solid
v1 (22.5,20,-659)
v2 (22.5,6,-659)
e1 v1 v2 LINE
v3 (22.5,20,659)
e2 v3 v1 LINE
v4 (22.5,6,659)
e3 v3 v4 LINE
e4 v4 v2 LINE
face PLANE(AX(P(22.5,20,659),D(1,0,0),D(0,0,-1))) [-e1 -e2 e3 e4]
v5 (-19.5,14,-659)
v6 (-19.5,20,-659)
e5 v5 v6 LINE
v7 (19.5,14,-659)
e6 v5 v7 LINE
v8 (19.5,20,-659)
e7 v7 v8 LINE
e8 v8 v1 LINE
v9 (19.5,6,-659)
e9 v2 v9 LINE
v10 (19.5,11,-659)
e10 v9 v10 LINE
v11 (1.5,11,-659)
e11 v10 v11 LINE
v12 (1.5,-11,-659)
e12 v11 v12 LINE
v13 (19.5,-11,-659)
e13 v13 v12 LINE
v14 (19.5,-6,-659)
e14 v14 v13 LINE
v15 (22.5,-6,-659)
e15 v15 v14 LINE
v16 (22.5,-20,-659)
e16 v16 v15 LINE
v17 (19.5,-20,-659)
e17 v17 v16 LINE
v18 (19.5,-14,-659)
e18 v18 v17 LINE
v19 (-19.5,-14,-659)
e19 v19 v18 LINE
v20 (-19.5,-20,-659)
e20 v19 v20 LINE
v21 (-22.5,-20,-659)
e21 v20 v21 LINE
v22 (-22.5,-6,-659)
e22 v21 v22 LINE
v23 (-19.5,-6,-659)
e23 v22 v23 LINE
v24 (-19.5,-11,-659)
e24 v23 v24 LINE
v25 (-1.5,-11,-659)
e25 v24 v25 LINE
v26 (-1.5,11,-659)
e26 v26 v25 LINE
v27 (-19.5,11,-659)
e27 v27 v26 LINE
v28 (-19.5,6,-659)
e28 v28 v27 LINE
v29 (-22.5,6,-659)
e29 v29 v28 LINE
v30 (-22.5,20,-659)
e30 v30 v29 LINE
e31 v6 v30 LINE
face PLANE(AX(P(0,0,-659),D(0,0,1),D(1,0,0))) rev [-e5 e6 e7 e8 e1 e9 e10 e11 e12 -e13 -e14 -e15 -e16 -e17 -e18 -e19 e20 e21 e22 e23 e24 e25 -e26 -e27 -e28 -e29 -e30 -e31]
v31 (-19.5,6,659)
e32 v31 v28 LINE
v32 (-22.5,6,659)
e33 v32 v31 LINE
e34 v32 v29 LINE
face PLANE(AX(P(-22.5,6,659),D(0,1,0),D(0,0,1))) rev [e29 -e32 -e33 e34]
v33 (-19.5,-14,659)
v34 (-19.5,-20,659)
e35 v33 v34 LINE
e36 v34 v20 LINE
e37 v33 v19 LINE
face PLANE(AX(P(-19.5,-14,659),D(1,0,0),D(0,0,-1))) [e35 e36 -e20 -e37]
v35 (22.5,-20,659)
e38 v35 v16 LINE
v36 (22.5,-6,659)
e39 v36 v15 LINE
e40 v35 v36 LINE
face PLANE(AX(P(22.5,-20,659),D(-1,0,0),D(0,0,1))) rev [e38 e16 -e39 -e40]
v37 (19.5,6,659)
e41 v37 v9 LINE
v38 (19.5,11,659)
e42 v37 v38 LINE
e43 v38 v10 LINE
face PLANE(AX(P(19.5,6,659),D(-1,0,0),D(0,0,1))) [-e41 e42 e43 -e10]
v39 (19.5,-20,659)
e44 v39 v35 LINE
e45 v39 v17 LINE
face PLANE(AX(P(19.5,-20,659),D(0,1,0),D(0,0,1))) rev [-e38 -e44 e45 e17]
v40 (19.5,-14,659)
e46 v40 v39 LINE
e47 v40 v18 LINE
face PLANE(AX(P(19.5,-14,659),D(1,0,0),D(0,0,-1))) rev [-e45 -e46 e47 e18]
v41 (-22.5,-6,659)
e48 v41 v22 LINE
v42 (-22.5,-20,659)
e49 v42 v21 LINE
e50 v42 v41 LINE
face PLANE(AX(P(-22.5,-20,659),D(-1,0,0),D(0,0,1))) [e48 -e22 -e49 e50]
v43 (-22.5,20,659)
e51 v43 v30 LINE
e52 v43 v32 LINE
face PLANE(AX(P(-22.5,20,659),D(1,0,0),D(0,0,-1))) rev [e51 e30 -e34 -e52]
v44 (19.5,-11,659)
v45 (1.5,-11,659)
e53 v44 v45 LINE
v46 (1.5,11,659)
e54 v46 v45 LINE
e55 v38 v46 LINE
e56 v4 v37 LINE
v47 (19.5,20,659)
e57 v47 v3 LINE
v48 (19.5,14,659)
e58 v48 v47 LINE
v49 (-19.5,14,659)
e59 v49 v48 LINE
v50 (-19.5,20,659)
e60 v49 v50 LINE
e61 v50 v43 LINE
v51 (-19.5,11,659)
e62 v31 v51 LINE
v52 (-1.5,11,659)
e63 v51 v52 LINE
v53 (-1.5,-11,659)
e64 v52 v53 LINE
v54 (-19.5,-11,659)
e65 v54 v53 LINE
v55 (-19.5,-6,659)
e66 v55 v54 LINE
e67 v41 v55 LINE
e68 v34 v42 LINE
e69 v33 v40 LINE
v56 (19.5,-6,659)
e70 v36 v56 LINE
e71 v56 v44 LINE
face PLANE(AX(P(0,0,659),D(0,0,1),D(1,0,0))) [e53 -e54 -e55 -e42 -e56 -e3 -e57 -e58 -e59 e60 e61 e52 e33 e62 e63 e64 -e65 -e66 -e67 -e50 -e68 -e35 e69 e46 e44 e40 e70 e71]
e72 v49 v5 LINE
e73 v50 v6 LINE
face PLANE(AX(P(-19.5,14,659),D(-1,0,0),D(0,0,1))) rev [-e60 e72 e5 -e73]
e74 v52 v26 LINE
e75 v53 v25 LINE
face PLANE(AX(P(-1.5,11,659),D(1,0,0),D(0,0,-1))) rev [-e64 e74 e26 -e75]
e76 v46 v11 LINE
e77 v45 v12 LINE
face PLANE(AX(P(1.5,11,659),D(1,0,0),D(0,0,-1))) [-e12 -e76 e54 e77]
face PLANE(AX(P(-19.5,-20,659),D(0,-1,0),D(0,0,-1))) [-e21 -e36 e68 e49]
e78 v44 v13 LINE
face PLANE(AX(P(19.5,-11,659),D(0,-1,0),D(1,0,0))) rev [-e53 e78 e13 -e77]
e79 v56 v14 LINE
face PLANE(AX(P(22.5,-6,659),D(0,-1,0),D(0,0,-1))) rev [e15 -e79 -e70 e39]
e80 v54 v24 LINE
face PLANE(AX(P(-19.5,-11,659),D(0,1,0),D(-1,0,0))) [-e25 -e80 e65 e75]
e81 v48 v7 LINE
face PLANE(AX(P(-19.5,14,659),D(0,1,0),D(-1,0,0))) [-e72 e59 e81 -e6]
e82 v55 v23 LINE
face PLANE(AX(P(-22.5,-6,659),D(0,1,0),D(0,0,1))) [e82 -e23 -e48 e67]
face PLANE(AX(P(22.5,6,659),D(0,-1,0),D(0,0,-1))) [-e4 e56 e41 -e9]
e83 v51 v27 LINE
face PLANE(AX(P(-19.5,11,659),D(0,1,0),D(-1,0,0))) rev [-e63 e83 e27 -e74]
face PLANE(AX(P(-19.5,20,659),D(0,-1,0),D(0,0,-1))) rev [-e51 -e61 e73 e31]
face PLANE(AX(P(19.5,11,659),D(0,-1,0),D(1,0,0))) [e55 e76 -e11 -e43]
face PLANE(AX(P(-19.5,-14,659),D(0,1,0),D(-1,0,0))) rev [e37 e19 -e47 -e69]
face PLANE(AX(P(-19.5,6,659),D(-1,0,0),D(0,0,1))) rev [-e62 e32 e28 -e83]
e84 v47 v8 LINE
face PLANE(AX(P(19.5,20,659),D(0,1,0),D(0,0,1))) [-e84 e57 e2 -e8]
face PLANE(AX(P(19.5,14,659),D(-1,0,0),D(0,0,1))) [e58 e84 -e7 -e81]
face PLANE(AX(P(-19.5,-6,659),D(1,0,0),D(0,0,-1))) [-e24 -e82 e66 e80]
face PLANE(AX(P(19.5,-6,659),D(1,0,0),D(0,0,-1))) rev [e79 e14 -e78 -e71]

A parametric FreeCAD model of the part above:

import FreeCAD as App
import Part
import Sketcher
Q = App.Units.Quantity


def add_polygon(sketch, points):
    """Adds a closed chain of lines whose ends are joined by coincident constraints."""
    first, n = sketch.GeometryCount, len(points)
    for a, b in zip(points, points[1:] + points[:1]):
        sketch.addGeometry(Part.LineSegment(App.Vector(*a, 0), App.Vector(*b, 0)), False)
    for i in range(n):
        sketch.addConstraint(Sketcher.Constraint("Coincident", first + i, 2, first + (i + 1) % n, 1))

doc = App.newDocument("Part")
body = doc.addObject("PartDesign::Body", "Body")

sketch1 = body.newObject("Sketcher::SketchObject", "Sketch")
sketch1.AttachmentSupport = (doc.getObject("XY_Plane"), [""])
sketch1.MapMode = "FlatFace"
add_polygon(sketch1, [(19.5, 14), (-19.5, 14), (-19.5, 20), (-22.5, 20), (-22.5, 6), (-19.5, 6), (-19.5, 11), (-1.5, 11), (-1.5, -11), (-19.5, -11), (-19.5, -6), (-22.5, -6), (-22.5, -20), (-19.5, -20), (-19.5, -14), (19.5, -14), (19.5, -20), (22.5, -20), (22.5, -6), (19.5, -6), (19.5, -11), (1.5, -11), (1.5, 11), (19.5, 11), (19.5, 6), (22.5, 6), (22.5, 20), (19.5, 20)])
sketch1.addConstraint(Sketcher.Constraint("Horizontal", 0))
sketch1.addConstraint(Sketcher.Constraint("Vertical", 1))
sketch1.addConstraint(Sketcher.Constraint("Horizontal", 2))
sketch1.addConstraint(Sketcher.Constraint("Vertical", 3))
sketch1.addConstraint(Sketcher.Constraint("Horizontal", 4))
sketch1.addConstraint(Sketcher.Constraint("Vertical", 5))
sketch1.addConstraint(Sketcher.Constraint("Horizontal", 6))
sketch1.addConstraint(Sketcher.Constraint("Vertical", 7))
sketch1.addConstraint(Sketcher.Constraint("Horizontal", 8))
sketch1.addConstraint(Sketcher.Constraint("Vertical", 9))
sketch1.addConstraint(Sketcher.Constraint("Horizontal", 10))
sketch1.addConstraint(Sketcher.Constraint("Vertical", 11))
sketch1.addConstraint(Sketcher.Constraint("Horizontal", 12))
sketch1.addConstraint(Sketcher.Constraint("Vertical", 13))
sketch1.addConstraint(Sketcher.Constraint("Horizontal", 14))
sketch1.addConstraint(Sketcher.Constraint("Vertical", 15))
sketch1.addConstraint(Sketcher.Constraint("Horizontal", 16))
sketch1.addConstraint(Sketcher.Constraint("Vertical", 17))
sketch1.addConstraint(Sketcher.Constraint("Horizontal", 18))
sketch1.addConstraint(Sketcher.Constraint("Vertical", 19))
sketch1.addConstraint(Sketcher.Constraint("Horizontal", 20))
sketch1.addConstraint(Sketcher.Constraint("Vertical", 21))
sketch1.addConstraint(Sketcher.Constraint("Horizontal", 22))
sketch1.addConstraint(Sketcher.Constraint("Vertical", 23))
sketch1.addConstraint(Sketcher.Constraint("Horizontal", 24))
sketch1.addConstraint(Sketcher.Constraint("Vertical", 25))
sketch1.addConstraint(Sketcher.Constraint("Horizontal", 26))
sketch1.addConstraint(Sketcher.Constraint("Vertical", 27))
sketch1.addConstraint(Sketcher.Constraint("Symmetric", 0, 2, 14, 2, -1, 1))
sketch1.addConstraint(Sketcher.Constraint("Symmetric", 2, 2, 16, 2, -1, 1))
sketch1.addConstraint(Sketcher.Constraint("Symmetric", 4, 2, 18, 2, -1, 1))
sketch1.addConstraint(Sketcher.Constraint("Symmetric", 6, 2, 20, 2, -1, 1))
sketch1.addConstraint(Sketcher.Constraint("Symmetric", 8, 2, 22, 2, -1, 1))
sketch1.addConstraint(Sketcher.Constraint("Symmetric", 10, 2, 24, 2, -1, 1))
sketch1.addConstraint(Sketcher.Constraint("Symmetric", 12, 2, 26, 2, -1, 1))
sketch1.addConstraint(Sketcher.Constraint("Symmetric", 12, 2, 15, 2, -2))
sketch1.addConstraint(Sketcher.Constraint("Symmetric", 10, 2, 17, 2, -2))
sketch1.addConstraint(Sketcher.Constraint("Symmetric", 8, 2, 19, 2, -2))
sketch1.addConstraint(Sketcher.Constraint("Vertical", 1, 2, 4, 2))
sketch1.addConstraint(Sketcher.Constraint("DistanceX", 0, 2, 0, 1, Q("39 mm")))
sketch1.addConstraint(Sketcher.Constraint("DistanceX", 2, 2, 2, 1, Q("3 mm")))
sketch1.addConstraint(Sketcher.Constraint("DistanceX", 6, 1, 6, 2, Q("18 mm")))
sketch1.addConstraint(Sketcher.Constraint("DistanceY", 1, 1, 1, 2, Q("6 mm")))
sketch1.addConstraint(Sketcher.Constraint("DistanceY", 3, 2, 3, 1, Q("14 mm")))
sketch1.addConstraint(Sketcher.Constraint("DistanceY", 5, 1, 5, 2, Q("5 mm")))
sketch1.addConstraint(Sketcher.Constraint("DistanceY", 7, 2, 7, 1, Q("22 mm")))
pad1 = body.newObject("PartDesign::Pad", "Pad")
pad1.Profile = sketch1
pad1.Length = 1318
pad1.Midplane = True

doc.recompute()
